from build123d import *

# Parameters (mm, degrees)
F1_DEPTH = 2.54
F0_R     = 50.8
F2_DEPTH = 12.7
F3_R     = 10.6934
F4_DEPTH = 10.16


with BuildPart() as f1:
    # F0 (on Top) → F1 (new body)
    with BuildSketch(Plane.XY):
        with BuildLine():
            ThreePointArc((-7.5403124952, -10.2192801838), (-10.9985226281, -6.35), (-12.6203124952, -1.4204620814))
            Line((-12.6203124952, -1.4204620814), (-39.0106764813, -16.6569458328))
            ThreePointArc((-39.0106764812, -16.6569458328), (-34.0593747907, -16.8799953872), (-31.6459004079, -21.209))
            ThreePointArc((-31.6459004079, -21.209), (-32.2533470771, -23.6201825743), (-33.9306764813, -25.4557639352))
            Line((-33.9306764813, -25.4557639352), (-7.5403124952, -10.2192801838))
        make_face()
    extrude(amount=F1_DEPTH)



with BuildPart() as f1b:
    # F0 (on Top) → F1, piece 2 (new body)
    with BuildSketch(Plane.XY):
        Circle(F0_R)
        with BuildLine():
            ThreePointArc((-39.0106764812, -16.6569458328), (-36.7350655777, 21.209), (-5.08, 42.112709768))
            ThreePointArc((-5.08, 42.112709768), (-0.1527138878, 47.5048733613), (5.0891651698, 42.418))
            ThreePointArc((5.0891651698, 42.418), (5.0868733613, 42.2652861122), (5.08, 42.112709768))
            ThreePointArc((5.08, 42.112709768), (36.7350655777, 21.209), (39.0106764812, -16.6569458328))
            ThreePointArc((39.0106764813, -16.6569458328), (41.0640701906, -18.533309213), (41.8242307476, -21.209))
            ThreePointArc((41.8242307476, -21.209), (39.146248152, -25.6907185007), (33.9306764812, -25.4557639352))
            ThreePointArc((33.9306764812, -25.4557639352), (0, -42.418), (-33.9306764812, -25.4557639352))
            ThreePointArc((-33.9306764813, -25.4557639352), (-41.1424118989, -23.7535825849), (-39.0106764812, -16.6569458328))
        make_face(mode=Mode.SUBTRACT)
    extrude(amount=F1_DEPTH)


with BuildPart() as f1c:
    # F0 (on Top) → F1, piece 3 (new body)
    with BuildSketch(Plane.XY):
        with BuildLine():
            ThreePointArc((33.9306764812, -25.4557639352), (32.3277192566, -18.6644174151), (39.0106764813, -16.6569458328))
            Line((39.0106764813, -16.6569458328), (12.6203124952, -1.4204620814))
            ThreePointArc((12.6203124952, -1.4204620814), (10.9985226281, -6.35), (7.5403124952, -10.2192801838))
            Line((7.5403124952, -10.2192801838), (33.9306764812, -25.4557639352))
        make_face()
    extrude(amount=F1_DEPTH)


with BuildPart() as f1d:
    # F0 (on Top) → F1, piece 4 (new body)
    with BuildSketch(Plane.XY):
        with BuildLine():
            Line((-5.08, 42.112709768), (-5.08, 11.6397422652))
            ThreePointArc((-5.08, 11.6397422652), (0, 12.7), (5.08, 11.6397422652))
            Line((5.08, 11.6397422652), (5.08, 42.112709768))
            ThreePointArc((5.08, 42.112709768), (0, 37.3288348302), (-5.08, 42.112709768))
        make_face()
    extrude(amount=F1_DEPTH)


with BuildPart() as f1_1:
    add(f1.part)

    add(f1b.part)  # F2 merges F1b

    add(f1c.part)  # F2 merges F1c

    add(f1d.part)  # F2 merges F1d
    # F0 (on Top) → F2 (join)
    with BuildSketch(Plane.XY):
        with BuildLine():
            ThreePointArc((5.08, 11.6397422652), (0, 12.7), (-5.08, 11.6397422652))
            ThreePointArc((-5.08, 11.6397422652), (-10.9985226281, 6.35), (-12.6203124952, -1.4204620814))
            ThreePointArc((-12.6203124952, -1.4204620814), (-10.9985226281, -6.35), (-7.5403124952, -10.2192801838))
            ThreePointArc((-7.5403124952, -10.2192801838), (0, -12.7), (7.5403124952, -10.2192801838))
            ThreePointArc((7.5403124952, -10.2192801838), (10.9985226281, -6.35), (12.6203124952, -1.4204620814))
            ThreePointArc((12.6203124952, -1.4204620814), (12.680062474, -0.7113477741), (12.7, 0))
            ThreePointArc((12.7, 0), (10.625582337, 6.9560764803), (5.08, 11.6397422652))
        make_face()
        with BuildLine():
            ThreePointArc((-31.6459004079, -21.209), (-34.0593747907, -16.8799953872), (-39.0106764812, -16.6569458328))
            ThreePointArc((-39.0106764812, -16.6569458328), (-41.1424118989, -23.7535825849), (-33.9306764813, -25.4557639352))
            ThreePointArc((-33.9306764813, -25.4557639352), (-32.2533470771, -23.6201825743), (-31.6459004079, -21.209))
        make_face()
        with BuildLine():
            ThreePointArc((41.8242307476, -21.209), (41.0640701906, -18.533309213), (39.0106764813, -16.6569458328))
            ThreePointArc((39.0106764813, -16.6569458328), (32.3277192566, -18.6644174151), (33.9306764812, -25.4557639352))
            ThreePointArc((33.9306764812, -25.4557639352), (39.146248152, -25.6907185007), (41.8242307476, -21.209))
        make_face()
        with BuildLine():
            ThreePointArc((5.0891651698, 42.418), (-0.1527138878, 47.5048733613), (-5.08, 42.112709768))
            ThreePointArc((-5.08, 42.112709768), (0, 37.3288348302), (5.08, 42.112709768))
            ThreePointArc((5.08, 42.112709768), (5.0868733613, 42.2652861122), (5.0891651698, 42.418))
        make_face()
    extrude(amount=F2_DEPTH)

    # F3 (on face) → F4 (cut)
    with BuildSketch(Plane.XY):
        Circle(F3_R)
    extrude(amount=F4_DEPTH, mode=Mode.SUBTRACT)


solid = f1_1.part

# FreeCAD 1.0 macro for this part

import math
import FreeCAD as App
import Part
import Sketcher
Q = App.Units.Quantity

doc = App.newDocument("Part")
body = doc.addObject("PartDesign::Body", "Body")

# Sketch on XY plane
sketch1 = body.newObject("Sketcher::SketchObject", "Sketch")
sketch1.AttachmentSupport = (doc.getObject("XY_Plane"), [""])
sketch1.MapMode = "FlatFace"
sketch1.addGeometry(Part.ArcOfCircle(Part.Circle(App.Vector(0, 0, 0), App.Vector(0, 0, 1), 12.7), math.radians(-173.578178), math.radians(-126.421822)), False)
sketch1.addGeometry(Part.LineSegment(App.Vector(-12.620312, -1.420462, 0), App.Vector(-39.010676, -16.656946, 0)), False)
sketch1.addGeometry(Part.ArcOfCircle(Part.Circle(App.Vector(-36.735066, -21.209, 0), App.Vector(0, 0, 1), 5.089165), math.radians(0), math.radians(116.56086)), False)
sketch1.addGeometry(Part.ArcOfCircle(Part.Circle(App.Vector(-36.735066, -21.209, 0), App.Vector(0, 0, 1), 5.089165), math.radians(-56.56086), math.radians(0)), False)
sketch1.addGeometry(Part.LineSegment(App.Vector(-33.930676, -25.455764, 0), App.Vector(-7.540312, -10.21928, 0)), False)
sketch1.addConstraint(Sketcher.Constraint("Coincident", 0, 1, 1, 1))
sketch1.addConstraint(Sketcher.Constraint("Coincident", 1, 2, 2, 2))
sketch1.addConstraint(Sketcher.Constraint("Tangent", 2, 1, 3, 2))
sketch1.addConstraint(Sketcher.Constraint("Coincident", 3, 1, 4, 1))
sketch1.addConstraint(Sketcher.Constraint("Coincident", 4, 2, 0, 2))
sketch1.addConstraint(Sketcher.Constraint("Coincident", 0, 3, -1, 1))
sketch1.addConstraint(Sketcher.Constraint("Equal", 2, 3))
sketch1.addConstraint(Sketcher.Constraint("Parallel", 1, 4))
sketch1.addConstraint(Sketcher.Constraint("Horizontal", 3, 3, 2, 1))
sketch1.addConstraint(Sketcher.Constraint("Equal", 1, 4))
sketch1.addConstraint(Sketcher.Constraint("Radius", 0, Q("0.5 in")))
sketch1.addConstraint(Sketcher.Constraint("Angle", 1, Q("-150 deg")))
sketch1.addConstraint(Sketcher.Constraint("DistanceX", 1, 2, 3, 1, Q("0.2 in")))
sketch1.addConstraint(Sketcher.Constraint("DistanceY", 2, 3, -1, 1, Q("0.835 in")))
sketch1.addConstraint(Sketcher.Constraint("Radius", 2, 5.089165))
sketch1.addConstraint(Sketcher.Constraint("DistanceX", 2, 1, -1, 1, 31.6459))
pad1 = body.newObject("PartDesign::Pad", "Pad")
pad1.Profile = sketch1
pad1.Length = Q("0.1 in")
body2 = doc.addObject("PartDesign::Body", "Body001")

# Sketch on XY plane
sketch2 = body2.newObject("Sketcher::SketchObject", "Sketch001")
sketch2.AttachmentSupport = (doc.getObject("XY_Plane001"), [""])
sketch2.MapMode = "FlatFace"
sketch2.addGeometry(Part.Circle(App.Vector(0, 0, 0), App.Vector(0, 0, 1), 50.8), False)
sketch2.addGeometry(Part.ArcOfCircle(Part.Circle(App.Vector(-36.735066, -21.209, 0), App.Vector(0, 0, 1), 5.089165), math.radians(116.56086), math.radians(303.43914)), False)
sketch2.addGeometry(Part.ArcOfCircle(Part.Circle(App.Vector(0, 0, 0), App.Vector(0, 0, 1), 42.418), math.radians(96.878279), math.radians(203.121721)), False)
sketch2.addGeometry(Part.ArcOfCircle(Part.Circle(App.Vector(0, 42.418, 0), App.Vector(0, 0, 1), 5.089165), math.radians(0), math.radians(183.43914)), False)
sketch2.addGeometry(Part.ArcOfCircle(Part.Circle(App.Vector(0, 42.418, 0), App.Vector(0, 0, 1), 5.089165), math.radians(-3.43914), math.radians(0)), False)
sketch2.addGeometry(Part.ArcOfCircle(Part.Circle(App.Vector(0, 0, 0), App.Vector(0, 0, 1), 42.418), math.radians(-23.121721), math.radians(83.121721)), False)
sketch2.addGeometry(Part.ArcOfCircle(Part.Circle(App.Vector(36.735066, -21.209, 0), App.Vector(0, 0, 1), 5.089165), math.radians(0), math.radians(63.43914)), False)
sketch2.addGeometry(Part.ArcOfCircle(Part.Circle(App.Vector(36.735066, -21.209, 0), App.Vector(0, 0, 1), 5.089165), math.radians(-123.43914), math.radians(0)), False)
sketch2.addGeometry(Part.ArcOfCircle(Part.Circle(App.Vector(0, 0, 0), App.Vector(0, 0, 1), 42.418), math.radians(-143.121721), math.radians(-36.878279)), False)
sketch2.addConstraint(Sketcher.Constraint("Coincident", 1, 1, 2, 2))
sketch2.addConstraint(Sketcher.Constraint("Coincident", 2, 1, 3, 2))
sketch2.addConstraint(Sketcher.Constraint("Tangent", 3, 1, 4, 2))
sketch2.addConstraint(Sketcher.Constraint("Coincident", 4, 1, 5, 2))
sketch2.addConstraint(Sketcher.Constraint("Coincident", 5, 1, 6, 2))
sketch2.addConstraint(Sketcher.Constraint("Tangent", 6, 1, 7, 2))
sketch2.addConstraint(Sketcher.Constraint("Coincident", 7, 1, 8, 2))
sketch2.addConstraint(Sketcher.Constraint("Coincident", 8, 1, 1, 2))
sketch2.addConstraint(Sketcher.Constraint("Coincident", 0, 3, -1, 1))
sketch2.addConstraint(Sketcher.Constraint("Coincident", 2, 3, -1, 1))
sketch2.addConstraint(Sketcher.Constraint("Coincident", 5, 3, -1, 1))
sketch2.addConstraint(Sketcher.Constraint("Coincident", 8, 3, -1, 1))
sketch2.addConstraint(Sketcher.Constraint("Equal", 1, 3))
sketch2.addConstraint(Sketcher.Constraint("Equal", 3, 4))
sketch2.addConstraint(Sketcher.Constraint("Equal", 2, 5))
sketch2.addConstraint(Sketcher.Constraint("Equal", 4, 6))
sketch2.addConstraint(Sketcher.Constraint("Equal", 6, 7))
sketch2.addConstraint(Sketcher.Constraint("Equal", 5, 8))
sketch2.addConstraint(Sketcher.Constraint("Symmetric", 1, 3, 6, 3, -2))
sketch2.addConstraint(Sketcher.Constraint("PointOnObject", 3, 3, -2))
sketch2.addConstraint(Sketcher.Constraint("Horizontal", 4, 3, 3, 1))
sketch2.addConstraint(Sketcher.Constraint("Horizontal", 7, 3, 6, 1))
sketch2.addConstraint(Sketcher.Constraint("Diameter", 0, Q("4 in")))
sketch2.addConstraint(Sketcher.Constraint("Radius", 2, Q("1.67 in")))
sketch2.addConstraint(Sketcher.Constraint("DistanceX", 2, 1, -1, 1, Q("0.2 in")))
sketch2.addConstraint(Sketcher.Constraint("DistanceX", 7, 1, 5, 1, Q("0.2 in")))
sketch2.addConstraint(Sketcher.Constraint("DistanceY", -1, 1, 3, 3, Q("1.67 in")))
sketch2.addConstraint(Sketcher.Constraint("DistanceY", 1, 3, -1, 1, Q("0.835 in")))
pad2 = body2.newObject("PartDesign::Pad", "Pad001")
pad2.Profile = sketch2
pad2.Length = Q("0.1 in")
body3 = doc.addObject("PartDesign::Body", "Body002")

# Sketch on XY plane
sketch3 = body3.newObject("Sketcher::SketchObject", "Sketch002")
sketch3.AttachmentSupport = (doc.getObject("XY_Plane002"), [""])
sketch3.MapMode = "FlatFace"
sketch3.addGeometry(Part.ArcOfCircle(Part.Circle(App.Vector(36.735066, -21.209, 0), App.Vector(0, 0, 1), 5.089165), math.radians(63.43914), math.radians(236.56086)), False)
sketch3.addGeometry(Part.LineSegment(App.Vector(39.010676, -16.656946, 0), App.Vector(12.620312, -1.420462, 0)), False)
sketch3.addGeometry(Part.ArcOfCircle(Part.Circle(App.Vector(0, 0, 0), App.Vector(0, 0, 1), 12.7), math.radians(-53.578178), math.radians(-6.421822)), False)
sketch3.addGeometry(Part.LineSegment(App.Vector(7.540312, -10.21928, 0), App.Vector(33.930676, -25.455764, 0)), False)
sketch3.addConstraint(Sketcher.Constraint("Coincident", 0, 1, 1, 1))
sketch3.addConstraint(Sketcher.Constraint("Coincident", 1, 2, 2, 2))
sketch3.addConstraint(Sketcher.Constraint("Coincident", 2, 1, 3, 1))
sketch3.addConstraint(Sketcher.Constraint("Coincident", 3, 2, 0, 2))
sketch3.addConstraint(Sketcher.Constraint("Coincident", 2, 3, -1, 1))
sketch3.addConstraint(Sketcher.Constraint("Parallel", 1, 3))
sketch3.addConstraint(Sketcher.Constraint("Equal", 1, 3))
sketch3.addConstraint(Sketcher.Constraint("Radius", 2, Q("0.5 in")))
sketch3.addConstraint(Sketcher.Constraint("Angle", 1, Q("150 deg")))
sketch3.addConstraint(Sketcher.Constraint("DistanceX", 2, 1, 1, 2, Q("0.2 in")))
sketch3.addConstraint(Sketcher.Constraint("DistanceY", 0, 3, -1, 1, Q("0.835 in")))
sketch3.addConstraint(Sketcher.Constraint("Radius", 0, 5.089165))
sketch3.addConstraint(Sketcher.Constraint("DistanceY", 3, 2, 1, 2, 24.035302))
pad3 = body3.newObject("PartDesign::Pad", "Pad002")
pad3.Profile = sketch3
pad3.Length = Q("0.1 in")
body4 = doc.addObject("PartDesign::Body", "Body003")

# Sketch on XY plane
sketch4 = body4.newObject("Sketcher::SketchObject", "Sketch003")
sketch4.AttachmentSupport = (doc.getObject("XY_Plane003"), [""])
sketch4.MapMode = "FlatFace"
sketch4.addGeometry(Part.LineSegment(App.Vector(-5.08, 42.11271, 0), App.Vector(-5.08, 11.639742, 0)), False)
sketch4.addGeometry(Part.ArcOfCircle(Part.Circle(App.Vector(0, 0, 0), App.Vector(0, 0, 1), 12.7), math.radians(66.421822), math.radians(113.578178)), False)
sketch4.addGeometry(Part.LineSegment(App.Vector(5.08, 11.639742, 0), App.Vector(5.08, 42.11271, 0)), False)
sketch4.addGeometry(Part.ArcOfCircle(Part.Circle(App.Vector(0, 42.418, 0), App.Vector(0, 0, 1), 5.089165), math.radians(-176.56086), math.radians(-3.43914)), False)
sketch4.addConstraint(Sketcher.Constraint("Coincident", 0, 2, 1, 2))
sketch4.addConstraint(Sketcher.Constraint("Coincident", 1, 1, 2, 1))
sketch4.addConstraint(Sketcher.Constraint("Coincident", 2, 2, 3, 2))
sketch4.addConstraint(Sketcher.Constraint("Coincident", 3, 1, 0, 1))
sketch4.addConstraint(Sketcher.Constraint("Vertical", 0))
sketch4.addConstraint(Sketcher.Constraint("Vertical", 2))
sketch4.addConstraint(Sketcher.Constraint("Coincident", 1, 3, -1, 1))
sketch4.addConstraint(Sketcher.Constraint("Symmetric", 2, 2, 3, 1, -2))
sketch4.addConstraint(Sketcher.Constraint("Radius", 1, Q("0.5 in")))
sketch4.addConstraint(Sketcher.Constraint("DistanceX", 0, 2, -1, 1, Q("0.2 in")))
sketch4.addConstraint(Sketcher.Constraint("DistanceY", -1, 1, 3, 3, Q("1.67 in")))
sketch4.addConstraint(Sketcher.Constraint("Radius", 3, 5.089165))
pad4 = body4.newObject("PartDesign::Pad", "Pad003")
pad4.Profile = sketch4
pad4.Length = Q("0.1 in")
body.AllowCompound = True
doc.recompute()

boolean = body.newObject("PartDesign::Boolean", "Boolean")
boolean.Type = "Fuse"
boolean.addObjects([body2])
doc.recompute()

boolean2 = body.newObject("PartDesign::Boolean", "Boolean001")
boolean2.Type = "Fuse"
boolean2.addObjects([body3])
doc.recompute()

boolean3 = body.newObject("PartDesign::Boolean", "Boolean002")
boolean3.Type = "Fuse"
boolean3.addObjects([body4])

# Sketch on XY plane
sketch5 = body.newObject("Sketcher::SketchObject", "Sketch004")
sketch5.AttachmentSupport = (doc.getObject("XY_Plane"), [""])
sketch5.MapMode = "FlatFace"
sketch5.addGeometry(Part.ArcOfCircle(Part.Circle(App.Vector(0, 0, 0), App.Vector(0, 0, 1), 12.7), math.radians(66.421822), math.radians(113.578178)), False)
sketch5.addGeometry(Part.ArcOfCircle(Part.Circle(App.Vector(0, 0, 0), App.Vector(0, 0, 1), 12.7), math.radians(113.578178), math.radians(186.421822)), False)
sketch5.addGeometry(Part.ArcOfCircle(Part.Circle(App.Vector(0, 0, 0), App.Vector(0, 0, 1), 12.7), math.radians(-173.578178), math.radians(-126.421822)), False)
sketch5.addGeometry(Part.ArcOfCircle(Part.Circle(App.Vector(0, 0, 0), App.Vector(0, 0, 1), 12.7), math.radians(-126.421822), math.radians(-53.578178)), False)
sketch5.addGeometry(Part.ArcOfCircle(Part.Circle(App.Vector(0, 0, 0), App.Vector(0, 0, 1), 12.7), math.radians(-53.578178), math.radians(-6.421822)), False)
sketch5.addGeometry(Part.ArcOfCircle(Part.Circle(App.Vector(0, 0, 0), App.Vector(0, 0, 1), 12.7), math.radians(-6.421822), math.radians(0)), False)
sketch5.addGeometry(Part.ArcOfCircle(Part.Circle(App.Vector(0, 0, 0), App.Vector(0, 0, 1), 12.7), math.radians(0), math.radians(66.421822)), False)
sketch5.addGeometry(Part.ArcOfCircle(Part.Circle(App.Vector(-36.735066, -21.209, 0), App.Vector(0, 0, 1), 5.089165), math.radians(0), math.radians(116.56086)), False)
sketch5.addGeometry(Part.ArcOfCircle(Part.Circle(App.Vector(-36.735066, -21.209, 0), App.Vector(0, 0, 1), 5.089165), math.radians(116.56086), math.radians(303.43914)), False)
sketch5.addGeometry(Part.ArcOfCircle(Part.Circle(App.Vector(-36.735066, -21.209, 0), App.Vector(0, 0, 1), 5.089165), math.radians(-56.56086), math.radians(0)), False)
sketch5.addGeometry(Part.ArcOfCircle(Part.Circle(App.Vector(36.735066, -21.209, 0), App.Vector(0, 0, 1), 5.089165), math.radians(0), math.radians(63.43914)), False)
sketch5.addGeometry(Part.ArcOfCircle(Part.Circle(App.Vector(36.735066, -21.209, 0), App.Vector(0, 0, 1), 5.089165), math.radians(63.43914), math.radians(236.56086)), False)
sketch5.addGeometry(Part.ArcOfCircle(Part.Circle(App.Vector(36.735066, -21.209, 0), App.Vector(0, 0, 1), 5.089165), math.radians(-123.43914), math.radians(0)), False)
sketch5.addGeometry(Part.ArcOfCircle(Part.Circle(App.Vector(0, 42.418, 0), App.Vector(0, 0, 1), 5.089165), math.radians(0), math.radians(183.43914)), False)
sketch5.addGeometry(Part.ArcOfCircle(Part.Circle(App.Vector(0, 42.418, 0), App.Vector(0, 0, 1), 5.089165), math.radians(-176.56086), math.radians(-3.43914)), False)
sketch5.addGeometry(Part.ArcOfCircle(Part.Circle(App.Vector(0, 42.418, 0), App.Vector(0, 0, 1), 5.089165), math.radians(-3.43914), math.radians(0)), False)
sketch5.addConstraint(Sketcher.Constraint("Tangent", 0, 2, 1, 1))
sketch5.addConstraint(Sketcher.Constraint("Tangent", 1, 2, 2, 1))
sketch5.addConstraint(Sketcher.Constraint("Tangent", 2, 2, 3, 1))
sketch5.addConstraint(Sketcher.Constraint("Tangent", 3, 2, 4, 1))
sketch5.addConstraint(Sketcher.Constraint("Tangent", 4, 2, 5, 1))
sketch5.addConstraint(Sketcher.Constraint("Tangent", 5, 2, 6, 1))
sketch5.addConstraint(Sketcher.Constraint("Tangent", 6, 2, 0, 1))
sketch5.addConstraint(Sketcher.Constraint("Tangent", 7, 2, 8, 1))
sketch5.addConstraint(Sketcher.Constraint("Tangent", 8, 2, 9, 1))
sketch5.addConstraint(Sketcher.Constraint("Tangent", 9, 2, 7, 1))
sketch5.addConstraint(Sketcher.Constraint("Tangent", 10, 2, 11, 1))
sketch5.addConstraint(Sketcher.Constraint("Tangent", 11, 2, 12, 1))
sketch5.addConstraint(Sketcher.Constraint("Tangent", 12, 2, 10, 1))
sketch5.addConstraint(Sketcher.Constraint("Tangent", 13, 2, 14, 1))
sketch5.addConstraint(Sketcher.Constraint("Tangent", 14, 2, 15, 1))
sketch5.addConstraint(Sketcher.Constraint("Tangent", 15, 2, 13, 1))
sketch5.addConstraint(Sketcher.Constraint("Coincident", 0, 3, -1, 1))
sketch5.addConstraint(Sketcher.Constraint("Coincident", 2, 3, -1, 1))
sketch5.addConstraint(Sketcher.Constraint("Coincident", 4, 3, -1, 1))
sketch5.addConstraint(Sketcher.Constraint("Equal", 9, 10))
sketch5.addConstraint(Sketcher.Constraint("Equal", 12, 13))
sketch5.addConstraint(Sketcher.Constraint("Symmetric", 7, 3, 10, 3, -2))
sketch5.addConstraint(Sketcher.Constraint("Symmetric", 13, 2, 14, 2, -2))
sketch5.addConstraint(Sketcher.Constraint("PointOnObject", 5, 2, -1))
sketch5.addConstraint(Sketcher.Constraint("Horizontal", 2, 2, 3, 2))
sketch5.addConstraint(Sketcher.Constraint("Horizontal", 1, 2, 4, 2))
sketch5.addConstraint(Sketcher.Constraint("Horizontal", 0, 2, 6, 2))
sketch5.addConstraint(Sketcher.Constraint("Horizontal", 12, 3, 9, 2))
sketch5.addConstraint(Sketcher.Constraint("Horizontal", 7, 2, 10, 2))
sketch5.addConstraint(Sketcher.Constraint("Horizontal", 8, 2, 11, 2))
sketch5.addConstraint(Sketcher.Constraint("Horizontal", 9, 2, 12, 2))
sketch5.addConstraint(Sketcher.Constraint("Horizontal", 14, 3, 15, 2))
sketch5.addConstraint(Sketcher.Constraint("Vertical", 0, 2, 13, 2))
sketch5.addConstraint(Sketcher.Constraint("Radius", 0, Q("0.5 in")))
sketch5.addConstraint(Sketcher.Constraint("DistanceX", 0, 2, -1, 1, Q("0.2 in")))
sketch5.addConstraint(Sketcher.Constraint("DistanceX", 1, 2, 2, 2, Q("0.2 in")))
sketch5.addConstraint(Sketcher.Constraint("DistanceX", 7, 2, 8, 2, Q("0.2 in")))
sketch5.addConstraint(Sketcher.Constraint("DistanceY", -1, 1, 13, 3, Q("1.67 in")))
sketch5.addConstraint(Sketcher.Constraint("DistanceY", 7, 3, -1, 1, Q("0.835 in")))
sketch5.addConstraint(Sketcher.Constraint("Radius", 7, 5.089165))
sketch5.addConstraint(Sketcher.Constraint("DistanceX", 9, 2, -1, 1, 31.6459))
sketch5.addConstraint(Sketcher.Constraint("DistanceY", 2, 2, -1, 1, 10.21928))
sketch5.addConstraint(Sketcher.Constraint("DistanceX", 7, 2, 7, 3, 2.275611))
pad5 = body.newObject("PartDesign::Pad", "Pad004")
pad5.Profile = sketch5
pad5.Length = Q("0.5 in")

# Sketch on XY plane
sketch6 = body.newObject("Sketcher::SketchObject", "Sketch005")
sketch6.AttachmentSupport = (doc.getObject("XY_Plane"), [""])
sketch6.MapMode = "FlatFace"
sketch6.addGeometry(Part.Circle(App.Vector(0, 0, 0), App.Vector(0, 0, 1), 10.6934), False)
sketch6.addConstraint(Sketcher.Constraint("Coincident", 0, 3, -1, 1))
sketch6.addConstraint(Sketcher.Constraint("Diameter", 0, Q("0.842 in")))
pocket1 = body.newObject("PartDesign::Pocket", "Pocket")
pocket1.Profile = sketch6
pocket1.Length = Q("0.4 in")
pocket1.Reversed = True

doc.recompute()
